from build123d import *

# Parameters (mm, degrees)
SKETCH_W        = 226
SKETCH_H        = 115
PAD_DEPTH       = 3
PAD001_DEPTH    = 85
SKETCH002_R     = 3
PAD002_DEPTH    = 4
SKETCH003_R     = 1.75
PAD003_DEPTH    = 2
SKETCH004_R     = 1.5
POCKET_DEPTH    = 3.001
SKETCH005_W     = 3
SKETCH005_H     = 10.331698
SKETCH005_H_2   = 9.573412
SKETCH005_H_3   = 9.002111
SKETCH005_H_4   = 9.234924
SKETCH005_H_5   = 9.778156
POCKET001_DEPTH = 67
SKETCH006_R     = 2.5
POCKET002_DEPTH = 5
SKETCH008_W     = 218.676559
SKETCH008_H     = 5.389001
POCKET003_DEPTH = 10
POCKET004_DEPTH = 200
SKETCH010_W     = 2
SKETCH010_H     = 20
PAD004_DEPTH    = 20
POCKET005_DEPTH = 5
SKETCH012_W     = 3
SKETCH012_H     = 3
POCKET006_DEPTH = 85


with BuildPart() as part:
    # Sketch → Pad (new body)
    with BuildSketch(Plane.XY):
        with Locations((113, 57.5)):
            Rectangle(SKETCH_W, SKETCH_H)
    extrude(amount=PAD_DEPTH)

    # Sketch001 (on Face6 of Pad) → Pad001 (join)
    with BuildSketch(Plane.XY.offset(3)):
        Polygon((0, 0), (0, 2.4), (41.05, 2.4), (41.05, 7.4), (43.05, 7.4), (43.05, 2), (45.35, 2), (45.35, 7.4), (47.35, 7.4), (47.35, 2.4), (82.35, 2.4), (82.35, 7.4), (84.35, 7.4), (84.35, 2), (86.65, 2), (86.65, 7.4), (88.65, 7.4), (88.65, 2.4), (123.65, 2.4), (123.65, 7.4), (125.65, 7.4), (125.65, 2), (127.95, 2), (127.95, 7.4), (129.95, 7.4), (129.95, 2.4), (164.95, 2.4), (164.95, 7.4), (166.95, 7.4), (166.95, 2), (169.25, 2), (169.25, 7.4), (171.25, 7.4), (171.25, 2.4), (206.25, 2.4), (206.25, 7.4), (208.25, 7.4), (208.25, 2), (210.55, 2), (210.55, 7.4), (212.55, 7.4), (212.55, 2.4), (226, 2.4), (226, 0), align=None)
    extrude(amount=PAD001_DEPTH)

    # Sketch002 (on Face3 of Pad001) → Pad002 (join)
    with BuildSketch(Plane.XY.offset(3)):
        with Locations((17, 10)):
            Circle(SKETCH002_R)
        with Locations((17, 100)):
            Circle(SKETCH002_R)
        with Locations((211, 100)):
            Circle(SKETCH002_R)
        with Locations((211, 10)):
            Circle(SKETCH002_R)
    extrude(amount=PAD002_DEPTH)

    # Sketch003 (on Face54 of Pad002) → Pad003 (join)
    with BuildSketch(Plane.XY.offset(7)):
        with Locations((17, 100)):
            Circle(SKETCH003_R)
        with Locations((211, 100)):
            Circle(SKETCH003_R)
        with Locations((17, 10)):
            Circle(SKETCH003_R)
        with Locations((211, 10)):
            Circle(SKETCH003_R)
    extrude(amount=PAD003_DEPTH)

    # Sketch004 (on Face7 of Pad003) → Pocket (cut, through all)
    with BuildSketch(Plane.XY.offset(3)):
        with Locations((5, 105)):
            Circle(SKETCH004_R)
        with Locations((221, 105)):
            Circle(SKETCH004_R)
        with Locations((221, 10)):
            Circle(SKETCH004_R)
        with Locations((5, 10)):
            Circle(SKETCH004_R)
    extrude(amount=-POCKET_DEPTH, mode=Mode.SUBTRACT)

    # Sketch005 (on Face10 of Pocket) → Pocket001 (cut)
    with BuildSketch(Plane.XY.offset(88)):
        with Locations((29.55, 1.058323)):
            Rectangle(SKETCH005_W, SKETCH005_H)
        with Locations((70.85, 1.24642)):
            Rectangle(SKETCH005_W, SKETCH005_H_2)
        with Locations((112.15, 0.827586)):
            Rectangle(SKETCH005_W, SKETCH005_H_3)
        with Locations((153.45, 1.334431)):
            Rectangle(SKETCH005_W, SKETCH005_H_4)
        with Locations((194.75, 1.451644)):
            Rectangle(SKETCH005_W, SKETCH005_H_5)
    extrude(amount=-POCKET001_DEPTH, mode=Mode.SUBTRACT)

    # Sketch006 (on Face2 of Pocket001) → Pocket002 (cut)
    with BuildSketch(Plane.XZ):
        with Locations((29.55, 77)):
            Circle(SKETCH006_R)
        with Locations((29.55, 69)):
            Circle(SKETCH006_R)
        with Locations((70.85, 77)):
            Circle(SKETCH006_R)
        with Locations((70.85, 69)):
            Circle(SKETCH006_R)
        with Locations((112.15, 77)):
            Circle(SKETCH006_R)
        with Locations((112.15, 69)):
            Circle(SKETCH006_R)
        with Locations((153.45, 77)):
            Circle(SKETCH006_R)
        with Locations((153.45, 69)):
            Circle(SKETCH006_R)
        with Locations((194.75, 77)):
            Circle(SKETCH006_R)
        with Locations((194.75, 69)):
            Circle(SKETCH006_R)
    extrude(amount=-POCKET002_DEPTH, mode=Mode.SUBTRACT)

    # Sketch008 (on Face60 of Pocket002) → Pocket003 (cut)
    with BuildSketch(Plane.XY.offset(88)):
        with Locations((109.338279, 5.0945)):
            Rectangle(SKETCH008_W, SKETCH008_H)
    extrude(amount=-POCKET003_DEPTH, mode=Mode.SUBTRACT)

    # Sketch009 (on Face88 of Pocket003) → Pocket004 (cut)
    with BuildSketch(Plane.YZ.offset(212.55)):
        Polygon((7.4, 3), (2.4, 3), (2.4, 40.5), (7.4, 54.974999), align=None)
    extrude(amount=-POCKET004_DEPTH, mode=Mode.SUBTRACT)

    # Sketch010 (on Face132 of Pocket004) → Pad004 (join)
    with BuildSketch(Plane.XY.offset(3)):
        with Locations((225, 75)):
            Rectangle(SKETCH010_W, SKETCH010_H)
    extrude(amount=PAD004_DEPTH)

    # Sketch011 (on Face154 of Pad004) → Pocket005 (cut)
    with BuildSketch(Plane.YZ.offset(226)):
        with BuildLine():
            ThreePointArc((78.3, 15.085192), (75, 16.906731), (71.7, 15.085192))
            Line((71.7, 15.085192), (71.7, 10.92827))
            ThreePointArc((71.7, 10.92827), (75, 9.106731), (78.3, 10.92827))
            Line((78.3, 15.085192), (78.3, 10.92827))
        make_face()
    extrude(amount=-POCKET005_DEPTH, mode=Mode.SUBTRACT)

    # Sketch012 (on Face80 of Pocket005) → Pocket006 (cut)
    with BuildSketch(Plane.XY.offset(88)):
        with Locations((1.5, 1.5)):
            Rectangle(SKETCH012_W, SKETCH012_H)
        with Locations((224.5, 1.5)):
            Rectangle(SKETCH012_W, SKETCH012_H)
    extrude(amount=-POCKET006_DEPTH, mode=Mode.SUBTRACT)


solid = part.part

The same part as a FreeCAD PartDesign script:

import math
import FreeCAD as App
import Part
import Sketcher

doc = App.newDocument("Part")
body = doc.addObject("PartDesign::Body", "Body")

# Sketch on XY plane
sketch1 = body.newObject("Sketcher::SketchObject", "Sketch")
sketch1.AttachmentSupport = (doc.getObject("XY_Plane"), [""])
sketch1.MapMode = "FlatFace"
sketch1.addGeometry([
    Part.LineSegment(App.Vector(0, 115, 0), App.Vector(0, 0, 0)),
    Part.LineSegment(App.Vector(0, 0, 0), App.Vector(226, 0, 0)),
    Part.LineSegment(App.Vector(226, 0, 0), App.Vector(226, 115, 0)),
    Part.LineSegment(App.Vector(226, 115, 0), App.Vector(0, 115, 0)),
], False)
sketch1.addConstraint([
    Sketcher.Constraint("Coincident", 0, 2, 1, 1),
    Sketcher.Constraint("Coincident", 1, 2, 2, 1),
    Sketcher.Constraint("Coincident", 2, 2, 3, 1),
    Sketcher.Constraint("Coincident", 3, 2, 0, 1),
    Sketcher.Constraint("Vertical", 0),
    Sketcher.Constraint("Horizontal", 1),
    Sketcher.Constraint("Vertical", 2),
    Sketcher.Constraint("Horizontal", 3),
    Sketcher.Constraint("Coincident", 0, 2, -1, 1),
    Sketcher.Constraint("DistanceX", 1, 1, 1, 2, 226.0),
    Sketcher.Constraint("DistanceY", 0, 2, 0, 1, 115.0),
])
pad1 = body.newObject("PartDesign::Pad", "Pad")
pad1.Profile = sketch1
pad1.Length = 3

# Sketch on XY plane
sketch2 = body.newObject("Sketcher::SketchObject", "Sketch001")
sketch2.AttachmentSupport = (doc.getObject("XY_Plane"), [""])
sketch2.MapMode = "FlatFace"
sketch2.AttachmentOffset = App.Placement(App.Vector(0, 0, 3), App.Rotation())
sketch2.addGeometry([
    Part.LineSegment(App.Vector(0, 2.4, 0), App.Vector(0, 0, 0)),  # 0
    Part.LineSegment(App.Vector(0, 0, 0), App.Vector(226, 0, 0)),  # 1
    Part.LineSegment(App.Vector(226, 0, 0), App.Vector(226, 2.4, 0)),  # 2
    Part.LineSegment(App.Vector(226, 2.4, 0), App.Vector(212.6, 2.4, 0)),  # 3
    Part.LineSegment(App.Vector(212.6, 2.4, 0), App.Vector(212.6, 7.4, 0)),  # 4
    Part.LineSegment(App.Vector(212.6, 7.4, 0), App.Vector(210.6, 7.4, 0)),  # 5
    Part.LineSegment(App.Vector(210.6, 7.4, 0), App.Vector(210.6, 2, 0)),  # 6
    Part.LineSegment(App.Vector(210.6, 2, 0), App.Vector(208.2, 2, 0)),  # 7
    Part.LineSegment(App.Vector(208.2, 2, 0), App.Vector(208.2, 7.4, 0)),  # 8
    Part.LineSegment(App.Vector(208.2, 7.4, 0), App.Vector(206.2, 7.4, 0)),  # 9
    Part.LineSegment(App.Vector(206.2, 7.4, 0), App.Vector(206.2, 2.4, 0)),  # 10
    Part.LineSegment(App.Vector(206.2, 2.4, 0), App.Vector(171.2, 2.4, 0)),  # 11
    Part.LineSegment(App.Vector(171.2, 2.4, 0), App.Vector(171.2, 7.4, 0)),  # 12
    Part.LineSegment(App.Vector(171.2, 7.4, 0), App.Vector(169.2, 7.4, 0)),  # 13
    Part.LineSegment(App.Vector(169.2, 7.4, 0), App.Vector(169.2, 2, 0)),  # 14
    Part.LineSegment(App.Vector(169.2, 2, 0), App.Vector(166.9, 2, 0)),  # 15
    Part.LineSegment(App.Vector(166.9, 2, 0), App.Vector(166.9, 7.4, 0)),  # 16
    Part.LineSegment(App.Vector(166.9, 7.4, 0), App.Vector(164.9, 7.4, 0)),  # 17
    Part.LineSegment(App.Vector(164.9, 7.4, 0), App.Vector(164.9, 2.4, 0)),  # 18
    Part.LineSegment(App.Vector(164.9, 2.4, 0), App.Vector(129.9, 2.4, 0)),  # 19
    Part.LineSegment(App.Vector(129.9, 2.4, 0), App.Vector(129.9, 7.4, 0)),  # 20
    Part.LineSegment(App.Vector(129.9, 7.4, 0), App.Vector(128, 7.4, 0)),  # 21
    Part.LineSegment(App.Vector(128, 7.4, 0), App.Vector(128, 2, 0)),  # 22
    Part.LineSegment(App.Vector(128, 2, 0), App.Vector(125.7, 2, 0)),  # 23
    Part.LineSegment(App.Vector(125.7, 2, 0), App.Vector(125.7, 7.4, 0)),  # 24
    Part.LineSegment(App.Vector(125.7, 7.4, 0), App.Vector(123.7, 7.4, 0)),  # 25
    Part.LineSegment(App.Vector(123.7, 7.4, 0), App.Vector(123.7, 2.4, 0)),  # 26
    Part.LineSegment(App.Vector(123.7, 2.4, 0), App.Vector(88.7, 2.4, 0)),  # 27
    Part.LineSegment(App.Vector(88.7, 2.4, 0), App.Vector(88.7, 7.4, 0)),  # 28
    Part.LineSegment(App.Vector(88.7, 7.4, 0), App.Vector(86.7, 7.4, 0)),  # 29
    Part.LineSegment(App.Vector(86.7, 7.4, 0), App.Vector(86.7, 2, 0)),  # 30
    Part.LineSegment(App.Vector(86.7, 2, 0), App.Vector(84.3, 2, 0)),  # 31
    Part.LineSegment(App.Vector(84.3, 2, 0), App.Vector(84.3, 7.4, 0)),  # 32
    Part.LineSegment(App.Vector(84.3, 7.4, 0), App.Vector(82.3, 7.4, 0)),  # 33
    Part.LineSegment(App.Vector(82.3, 7.4, 0), App.Vector(82.3, 2.4, 0)),  # 34
    Part.LineSegment(App.Vector(82.3, 2.4, 0), App.Vector(47.4, 2.4, 0)),  # 35
    Part.LineSegment(App.Vector(47.4, 2.4, 0), App.Vector(47.4, 7.4, 0)),  # 36
    Part.LineSegment(App.Vector(47.4, 7.4, 0), App.Vector(45.4, 7.4, 0)),  # 37
    Part.LineSegment(App.Vector(45.4, 7.4, 0), App.Vector(45.4, 2, 0)),  # 38
    Part.LineSegment(App.Vector(45.4, 2, 0), App.Vector(43, 2, 0)),  # 39
    Part.LineSegment(App.Vector(43, 2, 0), App.Vector(43, 7.4, 0)),  # 40
    Part.LineSegment(App.Vector(43, 7.4, 0), App.Vector(41, 7.4, 0)),  # 41
    Part.LineSegment(App.Vector(41, 7.4, 0), App.Vector(41, 2.4, 0)),  # 42
    Part.LineSegment(App.Vector(41, 2.4, 0), App.Vector(0, 2.4, 0)),  # 43
], False)
sketch2.addConstraint([
    Sketcher.Constraint("Coincident", 0, 2, 1, 1),
    Sketcher.Constraint("Coincident", 1, 2, 2, 1),
    Sketcher.Constraint("Coincident", 2, 2, 3, 1),
    Sketcher.Constraint("Coincident", 3, 2, 4, 1),
    Sketcher.Constraint("Coincident", 4, 2, 5, 1),
    Sketcher.Constraint("Coincident", 5, 2, 6, 1),
    Sketcher.Constraint("Coincident", 6, 2, 7, 1),
    Sketcher.Constraint("Coincident", 7, 2, 8, 1),
    Sketcher.Constraint("Coincident", 8, 2, 9, 1),
    Sketcher.Constraint("Coincident", 9, 2, 10, 1),
    Sketcher.Constraint("Coincident", 10, 2, 11, 1),
    Sketcher.Constraint("Coincident", 11, 2, 12, 1),
    Sketcher.Constraint("Coincident", 12, 2, 13, 1),
    Sketcher.Constraint("Coincident", 13, 2, 14, 1),
    Sketcher.Constraint("Coincident", 14, 2, 15, 1),
    Sketcher.Constraint("Coincident", 15, 2, 16, 1),
    Sketcher.Constraint("Coincident", 16, 2, 17, 1),
    Sketcher.Constraint("Coincident", 17, 2, 18, 1),
    Sketcher.Constraint("Coincident", 18, 2, 19, 1),
    Sketcher.Constraint("Coincident", 19, 2, 20, 1),
    Sketcher.Constraint("Coincident", 20, 2, 21, 1),
    Sketcher.Constraint("Coincident", 21, 2, 22, 1),
    Sketcher.Constraint("Coincident", 22, 2, 23, 1),
    Sketcher.Constraint("Coincident", 23, 2, 24, 1),
    Sketcher.Constraint("Coincident", 24, 2, 25, 1),
    Sketcher.Constraint("Coincident", 25, 2, 26, 1),
    Sketcher.Constraint("Coincident", 26, 2, 27, 1),
    Sketcher.Constraint("Coincident", 27, 2, 28, 1),
    Sketcher.Constraint("Coincident", 28, 2, 29, 1),
    Sketcher.Constraint("Coincident", 29, 2, 30, 1),
    Sketcher.Constraint("Coincident", 30, 2, 31, 1),
    Sketcher.Constraint("Coincident", 31, 2, 32, 1),
    Sketcher.Constraint("Coincident", 32, 2, 33, 1),
    Sketcher.Constraint("Coincident", 33, 2, 34, 1),
    Sketcher.Constraint("Coincident", 34, 2, 35, 1),
    Sketcher.Constraint("Coincident", 35, 2, 36, 1),
    Sketcher.Constraint("Coincident", 36, 2, 37, 1),
    Sketcher.Constraint("Coincident", 37, 2, 38, 1),
    Sketcher.Constraint("Coincident", 38, 2, 39, 1),
    Sketcher.Constraint("Coincident", 39, 2, 40, 1),
    Sketcher.Constraint("Coincident", 40, 2, 41, 1),
    Sketcher.Constraint("Coincident", 41, 2, 42, 1),
    Sketcher.Constraint("Coincident", 42, 2, 43, 1),
    Sketcher.Constraint("Coincident", 43, 2, 0, 1),
    Sketcher.Constraint("Vertical", 0),
    Sketcher.Constraint("Horizontal", 1),
    Sketcher.Constraint("Vertical", 2),
    Sketcher.Constraint("Horizontal", 3),
    Sketcher.Constraint("Vertical", 4),
    Sketcher.Constraint("Horizontal", 5),
    Sketcher.Constraint("Vertical", 6),
    Sketcher.Constraint("Horizontal", 7),
    Sketcher.Constraint("Vertical", 8),
    Sketcher.Constraint("Horizontal", 9),
    Sketcher.Constraint("Vertical", 10),
    Sketcher.Constraint("Horizontal", 11),
    Sketcher.Constraint("Vertical", 12),
    Sketcher.Constraint("Horizontal", 13),
    Sketcher.Constraint("Vertical", 14),
    Sketcher.Constraint("Horizontal", 15),
    Sketcher.Constraint("Vertical", 16),
    Sketcher.Constraint("Horizontal", 17),
    Sketcher.Constraint("Vertical", 18),
    Sketcher.Constraint("Horizontal", 19),
    Sketcher.Constraint("Vertical", 20),
    Sketcher.Constraint("Horizontal", 21),
    Sketcher.Constraint("Vertical", 22),
    Sketcher.Constraint("Horizontal", 23),
    Sketcher.Constraint("Vertical", 24),
    Sketcher.Constraint("Horizontal", 25),
    Sketcher.Constraint("Vertical", 26),
    Sketcher.Constraint("Horizontal", 27),
    Sketcher.Constraint("Vertical", 28),
    Sketcher.Constraint("Horizontal", 29),
    Sketcher.Constraint("Vertical", 30),
    Sketcher.Constraint("Horizontal", 31),
    Sketcher.Constraint("Vertical", 32),
    Sketcher.Constraint("Horizontal", 33),
    Sketcher.Constraint("Vertical", 34),
    Sketcher.Constraint("Horizontal", 35),
    Sketcher.Constraint("Vertical", 36),
    Sketcher.Constraint("Horizontal", 37),
    Sketcher.Constraint("Vertical", 38),
    Sketcher.Constraint("Horizontal", 39),
    Sketcher.Constraint("Vertical", 40),
    Sketcher.Constraint("Horizontal", 41),
    Sketcher.Constraint("Vertical", 42),
    Sketcher.Constraint("Horizontal", 43),
    Sketcher.Constraint("Coincident", 0, 2, -1, 1),
    Sketcher.Constraint("Horizontal", 5, 2, 8, 2),
    Sketcher.Constraint("Horizontal", 3, 2, 10, 2),
    Sketcher.Constraint("Horizontal", 9, 2, 12, 2),
    Sketcher.Constraint("Horizontal", 7, 2, 14, 2),
    Sketcher.Constraint("Horizontal", 13, 2, 16, 2),
    Sketcher.Constraint("Horizontal", 11, 2, 18, 2),
    Sketcher.Constraint("Horizontal", 17, 2, 20, 2),
    Sketcher.Constraint("Horizontal", 15, 2, 22, 2),
    Sketcher.Constraint("Horizontal", 21, 2, 24, 2),
    Sketcher.Constraint("Horizontal", 19, 2, 26, 2),
    Sketcher.Constraint("Horizontal", 25, 2, 28, 2),
    Sketcher.Constraint("Horizontal", 23, 2, 30, 2),
    Sketcher.Constraint("Horizontal", 29, 2, 32, 2),
    Sketcher.Constraint("Horizontal", 27, 2, 34, 2),
    Sketcher.Constraint("Horizontal", 33, 2, 36, 2),
    Sketcher.Constraint("Horizontal", 31, 2, 38, 2),
    Sketcher.Constraint("Horizontal", 37, 2, 40, 2),
    Sketcher.Constraint("Horizontal", 35, 2, 42, 2),
    Sketcher.Constraint("Equal", 5, 9),
    Sketcher.Constraint("Equal", 9, 13),
    Sketcher.Constraint("Equal", 7, 15),
    Sketcher.Constraint("Equal", 13, 17),
    Sketcher.Constraint("Equal", 11, 19),
    Sketcher.Constraint("Equal", 17, 21),
    Sketcher.Constraint("Equal", 15, 23),
    Sketcher.Constraint("Equal", 21, 25),
    Sketcher.Constraint("Equal", 19, 27),
    Sketcher.Constraint("Equal", 25, 29),
    Sketcher.Constraint("Equal", 23, 31),
    Sketcher.Constraint("Equal", 29, 33),
    Sketcher.Constraint("Equal", 27, 35),
    Sketcher.Constraint("Equal", 33, 37),
    Sketcher.Constraint("Equal", 31, 39),
    Sketcher.Constraint("Equal", 37, 41),
    Sketcher.Constraint("DistanceX", 1, 1, 1, 2, 226.0),
    Sketcher.Constraint("DistanceX", 5, 2, 5, 1, 2.0),
    Sketcher.Constraint("DistanceX", 11, 2, 11, 1, 35.0),
    Sketcher.Constraint("DistanceY", 4, 1, 4, 2, 5.0),
    Sketcher.Constraint("DistanceX", 7, 2, 7, 1, 2.3),
    Sketcher.Constraint("DistanceY", 0, 2, 0, 1, 2.4),
    Sketcher.Constraint("DistanceY", 6, 2, 6, 1, 5.4),
    Sketcher.Constraint("DistanceX", 3, 2, 3, 1, 13.45),
])
pad2 = body.newObject("PartDesign::Pad", "Pad001")
pad2.Profile = sketch2
pad2.Length = 85

# Sketch on XY plane
sketch3 = body.newObject("Sketcher::SketchObject", "Sketch002")
sketch3.AttachmentSupport = (doc.getObject("XY_Plane"), [""])
sketch3.MapMode = "FlatFace"
sketch3.AttachmentOffset = App.Placement(App.Vector(0, 0, 3), App.Rotation())
sketch3.addGeometry([
    Part.Circle(App.Vector(17, 10, 0), App.Vector(0, 0, 1), 3),
    Part.Circle(App.Vector(17, 100, 0), App.Vector(0, 0, 1), 3),
    Part.Circle(App.Vector(211, 100, 0), App.Vector(0, 0, 1), 3),
    Part.Circle(App.Vector(211, 10, 0), App.Vector(0, 0, 1), 3),
], False)
sketch3.addConstraint([
    Sketcher.Constraint("Equal", 0, 1),
    Sketcher.Constraint("Equal", 1, 2),
    Sketcher.Constraint("Equal", 2, 3),
    Sketcher.Constraint("Horizontal", 1, 3, 2, 3),
    Sketcher.Constraint("Horizontal", 0, 3, 3, 3),
    Sketcher.Constraint("Vertical", 0, 3, 1, 3),
    Sketcher.Constraint("Vertical", 2, 3, 3, 3),
    Sketcher.Constraint("Diameter", 0, 6.0),
    Sketcher.Constraint("DistanceX", -1, 1, 0, 3, 17.0),
    Sketcher.Constraint("DistanceY", -1, 1, 0, 3, 10.0),
    Sketcher.Constraint("DistanceY", -1, 1, 1, 3, 100.0),
    Sketcher.Constraint("DistanceX", -1, 1, 2, 3, 211.0),
])
pad3 = body.newObject("PartDesign::Pad", "Pad002")
pad3.Profile = sketch3
pad3.Length = 4

# Sketch on XY plane
sketch4 = body.newObject("Sketcher::SketchObject", "Sketch003")
sketch4.AttachmentSupport = (doc.getObject("XY_Plane"), [""])
sketch4.MapMode = "FlatFace"
sketch4.AttachmentOffset = App.Placement(App.Vector(0, 0, 7), App.Rotation())
sketch4.addGeometry([
    Part.Circle(App.Vector(17, 100, 0), App.Vector(0, 0, 1), 1.8),
    Part.Circle(App.Vector(211, 100, 0), App.Vector(0, 0, 1), 1.8),
    Part.Circle(App.Vector(17, 10, 0), App.Vector(0, 0, 1), 1.8),
    Part.Circle(App.Vector(211, 10, 0), App.Vector(0, 0, 1), 1.8),
], False)
sketch4.addConstraint([
    Sketcher.Constraint("Equal", 0, 1),
    Sketcher.Constraint("Equal", 1, 2),
    Sketcher.Constraint("Equal", 2, 3),
    Sketcher.Constraint("Horizontal", 0, 3, 1, 3),
    Sketcher.Constraint("Horizontal", 2, 3, 3, 3),
    Sketcher.Constraint("Vertical", 0, 3, 2, 3),
    Sketcher.Constraint("Vertical", 1, 3, 3, 3),
    Sketcher.Constraint("Diameter", 0, 3.5),
    Sketcher.Constraint("DistanceX", -1, 1, 0, 3, 17.0),
    Sketcher.Constraint("DistanceY", -1, 1, 0, 3, 100.0),
    Sketcher.Constraint("DistanceX", -1, 1, 1, 3, 211.0),
    Sketcher.Constraint("DistanceY", -1, 1, 2, 3, 10.0),
])
pad4 = body.newObject("PartDesign::Pad", "Pad003")
pad4.Profile = sketch4
pad4.Length = 2

# Sketch on XY plane
sketch5 = body.newObject("Sketcher::SketchObject", "Sketch004")
sketch5.AttachmentSupport = (doc.getObject("XY_Plane"), [""])
sketch5.MapMode = "FlatFace"
sketch5.AttachmentOffset = App.Placement(App.Vector(0, 0, 3), App.Rotation())
sketch5.addGeometry([
    Part.Circle(App.Vector(5, 105, 0), App.Vector(0, 0, 1), 1.5),
    Part.Circle(App.Vector(221, 105, 0), App.Vector(0, 0, 1), 1.5),
    Part.Circle(App.Vector(221, 10, 0), App.Vector(0, 0, 1), 1.5),
    Part.Circle(App.Vector(5, 10, 0), App.Vector(0, 0, 1), 1.5),
], False)
sketch5.addConstraint([
    Sketcher.Constraint("Equal", 0, 1),
    Sketcher.Constraint("Equal", 1, 2),
    Sketcher.Constraint("Equal", 2, 3),
    Sketcher.Constraint("Horizontal", 0, 3, 1, 3),
    Sketcher.Constraint("Horizontal", 2, 3, 3, 3),
    Sketcher.Constraint("Vertical", 1, 3, 2, 3),
    Sketcher.Constraint("Vertical", 0, 3, 3, 3),
    Sketcher.Constraint("Diameter", 0, 3.0),
    Sketcher.Constraint("DistanceX", -1, 1, 0, 3, 5.0),
    Sketcher.Constraint("DistanceY", -1, 1, 0, 3, 105.0),
    Sketcher.Constraint("DistanceX", -1, 1, 1, 3, 221.0),
    Sketcher.Constraint("DistanceY", -1, 1, 2, 3, 10.0),
])
pocket1 = body.newObject("PartDesign::Pocket", "Pocket")
pocket1.Profile = sketch5
pocket1.Type = "ThroughAll"

# Sketch on XY plane
sketch6 = body.newObject("Sketcher::SketchObject", "Sketch005")
sketch6.AttachmentSupport = (doc.getObject("XY_Plane"), [""])
sketch6.MapMode = "FlatFace"
sketch6.AttachmentOffset = App.Placement(App.Vector(0, 0, 88), App.Rotation())
sketch6.addGeometry([
    Part.LineSegment(App.Vector(28.1, 6.2, 0), App.Vector(28.1, -4.1, 0)),  # 0
    Part.LineSegment(App.Vector(28.1, -4.1, 0), App.Vector(31.1, -4.1, 0)),  # 1
    Part.LineSegment(App.Vector(31.1, -4.1, 0), App.Vector(31.1, 6.2, 0)),  # 2
    Part.LineSegment(App.Vector(31.1, 6.2, 0), App.Vector(28.1, 6.2, 0)),  # 3
    Part.LineSegment(App.Vector(69.3, 6, 0), App.Vector(69.3, -3.5, 0)),  # 4
    Part.LineSegment(App.Vector(69.3, -3.5, 0), App.Vector(72.3, -3.5, 0)),  # 5
    Part.LineSegment(App.Vector(72.3, -3.5, 0), App.Vector(72.3, 6, 0)),  # 6
    Part.LineSegment(App.Vector(72.3, 6, 0), App.Vector(69.3, 6, 0)),  # 7
    Part.LineSegment(App.Vector(110.7, 5.3, 0), App.Vector(110.7, -3.7, 0)),  # 8
    Part.LineSegment(App.Vector(110.7, -3.7, 0), App.Vector(113.7, -3.7, 0)),  # 9
    Part.LineSegment(App.Vector(113.7, -3.7, 0), App.Vector(113.7, 5.3, 0)),  # 10
    Part.LineSegment(App.Vector(113.7, 5.3, 0), App.Vector(110.7, 5.3, 0)),  # 11
    Part.LineSegment(App.Vector(151.9, 6, 0), App.Vector(151.9, -3.3, 0)),  # 12
    Part.LineSegment(App.Vector(151.9, -3.3, 0), App.Vector(154.9, -3.3, 0)),  # 13
    Part.LineSegment(App.Vector(154.9, -3.3, 0), App.Vector(154.9, 6, 0)),  # 14
    Part.LineSegment(App.Vector(154.9, 6, 0), App.Vector(151.9, 6, 0)),  # 15
    Part.LineSegment(App.Vector(193.2, 6.3, 0), App.Vector(193.2, -3.4, 0)),  # 16
    Part.LineSegment(App.Vector(193.2, -3.4, 0), App.Vector(196.2, -3.4, 0)),  # 17
    Part.LineSegment(App.Vector(196.2, -3.4, 0), App.Vector(196.2, 6.3, 0)),  # 18
    Part.LineSegment(App.Vector(196.2, 6.3, 0), App.Vector(193.2, 6.3, 0)),  # 19
], False)
sketch6.addConstraint([
    Sketcher.Constraint("Coincident", 0, 2, 1, 1),
    Sketcher.Constraint("Coincident", 1, 2, 2, 1),
    Sketcher.Constraint("Coincident", 2, 2, 3, 1),
    Sketcher.Constraint("Coincident", 3, 2, 0, 1),
    Sketcher.Constraint("Coincident", 4, 2, 5, 1),
    Sketcher.Constraint("Coincident", 5, 2, 6, 1),
    Sketcher.Constraint("Coincident", 6, 2, 7, 1),
    Sketcher.Constraint("Coincident", 7, 2, 4, 1),
    Sketcher.Constraint("Coincident", 8, 2, 9, 1),
    Sketcher.Constraint("Coincident", 9, 2, 10, 1),
    Sketcher.Constraint("Coincident", 10, 2, 11, 1),
    Sketcher.Constraint("Coincident", 11, 2, 8, 1),
    Sketcher.Constraint("Coincident", 12, 2, 13, 1),
    Sketcher.Constraint("Coincident", 13, 2, 14, 1),
    Sketcher.Constraint("Coincident", 14, 2, 15, 1),
    Sketcher.Constraint("Coincident", 15, 2, 12, 1),
    Sketcher.Constraint("Coincident", 16, 2, 17, 1),
    Sketcher.Constraint("Coincident", 17, 2, 18, 1),
    Sketcher.Constraint("Coincident", 18, 2, 19, 1),
    Sketcher.Constraint("Coincident", 19, 2, 16, 1),
    Sketcher.Constraint("Vertical", 0),
    Sketcher.Constraint("Horizontal", 1),
    Sketcher.Constraint("Vertical", 2),
    Sketcher.Constraint("Horizontal", 3),
    Sketcher.Constraint("Vertical", 4),
    Sketcher.Constraint("Horizontal", 5),
    Sketcher.Constraint("Vertical", 6),
    Sketcher.Constraint("Horizontal", 7),
    Sketcher.Constraint("Vertical", 8),
    Sketcher.Constraint("Horizontal", 9),
    Sketcher.Constraint("Vertical", 10),
    Sketcher.Constraint("Horizontal", 11),
    Sketcher.Constraint("Vertical", 12),
    Sketcher.Constraint("Horizontal", 13),
    Sketcher.Constraint("Vertical", 14),
    Sketcher.Constraint("Horizontal", 15),
    Sketcher.Constraint("Vertical", 16),
    Sketcher.Constraint("Horizontal", 17),
    Sketcher.Constraint("Vertical", 18),
    Sketcher.Constraint("Horizontal", 19),
    Sketcher.Constraint("Equal", 3, 5),
    Sketcher.Constraint("Equal", 7, 9),
    Sketcher.Constraint("Equal", 11, 13),
    Sketcher.Constraint("Equal", 15, 17),
    Sketcher.Constraint("DistanceX", 1, 1, 1, 2, 3.0),
    Sketcher.Constraint("DistanceX", 1, 2, 4, 2, 38.3),
    Sketcher.Constraint("DistanceX", 5, 2, 8, 2, 38.3),
    Sketcher.Constraint("DistanceX", 9, 2, 12, 2, 38.3),
    Sketcher.Constraint("DistanceX", 13, 2, 16, 2, 38.3),
    Sketcher.Constraint("DistanceX", -1, 1, 0, 2, 28.05),
    Sketcher.Constraint("DistanceY", 8, 2, 8, 1, 9.002111),
    Sketcher.Constraint("DistanceY", 0, 2, 0, 1, 10.331698),
    Sketcher.Constraint("DistanceY", 4, 2, 4, 1, 9.573412),
    Sketcher.Constraint("DistanceY", 12, 2, 12, 1, 9.234924),
    Sketcher.Constraint("DistanceY", 16, 2, 16, 1, 9.778156),
    Sketcher.Constraint("DistanceY", 8, 2, -1, 1, 3.673469),
    Sketcher.Constraint("DistanceY", 12, 2, -1, 1, 3.283031),
    Sketcher.Constraint("DistanceY", 1, 2, 4, 2, 0.56724),
    Sketcher.Constraint("DistanceY", 14, 2, 18, 2, 0.388829),
    Sketcher.Constraint("DistanceY", 0, 2, -1, 1, 4.107526),
])
pocket2 = body.newObject("PartDesign::Pocket", "Pocket001")
pocket2.Profile = sketch6
pocket2.Length = 67

# Sketch on XZ plane
sketch7 = body.newObject("Sketcher::SketchObject", "Sketch006")
sketch7.AttachmentSupport = (doc.getObject("XZ_Plane"), [""])
sketch7.MapMode = "FlatFace"
sketch7.addGeometry([
    Part.Circle(App.Vector(29.6, 77, 0), App.Vector(0, 0, 1), 2.5),  # 0
    Part.Circle(App.Vector(29.6, 69, 0), App.Vector(0, 0, 1), 2.5),  # 1
    Part.Circle(App.Vector(70.8, 77, 0), App.Vector(0, 0, 1), 2.5),  # 2
    Part.Circle(App.Vector(70.8, 69, 0), App.Vector(0, 0, 1), 2.5),  # 3
    Part.Circle(App.Vector(112.2, 77, 0), App.Vector(0, 0, 1), 2.5),  # 4
    Part.Circle(App.Vector(112.2, 69, 0), App.Vector(0, 0, 1), 2.5),  # 5
    Part.Circle(App.Vector(153.4, 77, 0), App.Vector(0, 0, 1), 2.5),  # 6
    Part.Circle(App.Vector(153.4, 69, 0), App.Vector(0, 0, 1), 2.5),  # 7
    Part.Circle(App.Vector(194.8, 77, 0), App.Vector(0, 0, 1), 2.5),  # 8
    Part.Circle(App.Vector(194.8, 69, 0), App.Vector(0, 0, 1), 2.5),  # 9
], False)
sketch7.addConstraint([
    Sketcher.Constraint("Equal", 0, 1),
    Sketcher.Constraint("Equal", 1, 2),
    Sketcher.Constraint("Equal", 2, 3),
    Sketcher.Constraint("Equal", 3, 4),
    Sketcher.Constraint("Equal", 4, 5),
    Sketcher.Constraint("Equal", 5, 6),
    Sketcher.Constraint("Equal", 6, 7),
    Sketcher.Constraint("Equal", 7, 8),
    Sketcher.Constraint("Equal", 8, 9),
    Sketcher.Constraint("Horizontal", 0, 3, 2, 3),
    Sketcher.Constraint("Horizontal", 1, 3, 3, 3),
    Sketcher.Constraint("Horizontal", 2, 3, 4, 3),
    Sketcher.Constraint("Horizontal", 3, 3, 5, 3),
    Sketcher.Constraint("Horizontal", 4, 3, 6, 3),
    Sketcher.Constraint("Horizontal", 5, 3, 7, 3),
    Sketcher.Constraint("Horizontal", 6, 3, 8, 3),
    Sketcher.Constraint("Horizontal", 7, 3, 9, 3),
    Sketcher.Constraint("Vertical", 0, 3, 1, 3),
    Sketcher.Constraint("Vertical", 2, 3, 3, 3),
    Sketcher.Constraint("Vertical", 4, 3, 5, 3),
    Sketcher.Constraint("Vertical", 6, 3, 7, 3),
    Sketcher.Constraint("Vertical", 8, 3, 9, 3),
    Sketcher.Constraint("Diameter", 0, 5.0),
    Sketcher.Constraint("DistanceY", -1, 1, 0, 3, 77.0),
    Sketcher.Constraint("DistanceY", -1, 1, 1, 3, 69.0),
    Sketcher.Constraint("DistanceX", 0, 3, 2, 3, 41.3),
    Sketcher.Constraint("DistanceX", 2, 3, 4, 3, 41.3),
    Sketcher.Constraint("DistanceX", 4, 3, 6, 3, 41.3),
    Sketcher.Constraint("DistanceX", 6, 3, 8, 3, 41.3),
    Sketcher.Constraint("DistanceX", -1, 1, 0, 3, 29.55),
])
pocket3 = body.newObject("PartDesign::Pocket", "Pocket002")
pocket3.Profile = sketch7
pocket3.Length = 5

# Sketch on XY plane
sketch8 = body.newObject("Sketcher::SketchObject", "Sketch007")
sketch8.AttachmentSupport = (doc.getObject("XY_Plane"), [""])
sketch8.MapMode = "FlatFace"
sketch8.AttachmentOffset = App.Placement(App.Vector(0, 0, 88), App.Rotation())
sketch8.addGeometry([
    Part.LineSegment(App.Vector(0, 8, 0), App.Vector(0, 2, 0)),
    Part.LineSegment(App.Vector(0, 2, 0), App.Vector(219, 2, 0)),
    Part.LineSegment(App.Vector(219, 2, 0), App.Vector(219, 8, 0)),
    Part.LineSegment(App.Vector(219, 8, 0), App.Vector(0, 8, 0)),
], False)
sketch8.addConstraint([
    Sketcher.Constraint("Coincident", 0, 2, 1, 1),
    Sketcher.Constraint("Coincident", 1, 2, 2, 1),
    Sketcher.Constraint("Coincident", 2, 2, 3, 1),
    Sketcher.Constraint("Coincident", 3, 2, 0, 1),
    Sketcher.Constraint("Vertical", 0),
    Sketcher.Constraint("Horizontal", 1),
    Sketcher.Constraint("Vertical", 2),
    Sketcher.Constraint("Horizontal", 3),
    Sketcher.Constraint("PointOnObject", 0, 2, -2),
    Sketcher.Constraint("DistanceY", -1, 1, 0, 2, 2.399999),
    Sketcher.Constraint("DistanceY", 0, 2, 0, 1, 5.389001),
    Sketcher.Constraint("DistanceX", 1, 1, 1, 2, 218.676559),
])
pocket4 = body.newObject("PartDesign::Pocket", "Pocket003")
pocket4.Profile = sketch8
pocket4.Length = 10

# Sketch on YZ plane
sketch9 = body.newObject("Sketcher::SketchObject", "Sketch008")
sketch9.AttachmentSupport = (doc.getObject("YZ_Plane"), [""])
sketch9.MapMode = "FlatFace"
sketch9.AttachmentOffset = App.Placement(App.Vector(0, 0, 212.55), App.Rotation())
sketch9.addGeometry([
    Part.LineSegment(App.Vector(2, 3, 0), App.Vector(7, 3, 0)),
    Part.LineSegment(App.Vector(7, 3, 0), App.Vector(7, 55, 0)),
    Part.LineSegment(App.Vector(7, 55, 0), App.Vector(2, 40, 0)),
    Part.LineSegment(App.Vector(2, 40, 0), App.Vector(2, 3, 0)),
], False)
sketch9.addConstraint([
    Sketcher.Constraint("Coincident", 0, 2, 1, 1),
    Sketcher.Constraint("Coincident", 1, 2, 2, 1),
    Sketcher.Constraint("Coincident", 2, 2, 3, 1),
    Sketcher.Constraint("Coincident", 3, 2, 0, 1),
    Sketcher.Constraint("Horizontal", 0),
    Sketcher.Constraint("Vertical", 1),
    Sketcher.Constraint("Vertical", 3),
    Sketcher.Constraint("DistanceX", 0, 1, 0, 2, 5.0),
    Sketcher.Constraint("DistanceY", 3, 2, 3, 1, 37.5),
    Sketcher.Constraint("DistanceY", -1, 1, 0, 2, 3.0),
    Sketcher.Constraint("DistanceX", -1, 1, 0, 2, 7.4),
    Sketcher.Constraint("DistanceY", 1, 1, 1, 2, 51.974999),
])
pocket5 = body.newObject("PartDesign::Pocket", "Pocket004")
pocket5.Profile = sketch9
pocket5.Length = 200

# Sketch on XY plane
sketch10 = body.newObject("Sketcher::SketchObject", "Sketch009")
sketch10.AttachmentSupport = (doc.getObject("XY_Plane"), [""])
sketch10.MapMode = "FlatFace"
sketch10.AttachmentOffset = App.Placement(App.Vector(0, 0, 3), App.Rotation())
sketch10.addGeometry([
    Part.LineSegment(App.Vector(224, 85, 0), App.Vector(224, 65, 0)),
    Part.LineSegment(App.Vector(224, 65, 0), App.Vector(226, 65, 0)),
    Part.LineSegment(App.Vector(226, 65, 0), App.Vector(226, 85, 0)),
    Part.LineSegment(App.Vector(226, 85, 0), App.Vector(224, 85, 0)),
], False)
sketch10.addConstraint([
    Sketcher.Constraint("Coincident", 0, 2, 1, 1),
    Sketcher.Constraint("Coincident", 1, 2, 2, 1),
    Sketcher.Constraint("Coincident", 2, 2, 3, 1),
    Sketcher.Constraint("Coincident", 3, 2, 0, 1),
    Sketcher.Constraint("Vertical", 0),
    Sketcher.Constraint("Horizontal", 1),
    Sketcher.Constraint("Vertical", 2),
    Sketcher.Constraint("Horizontal", 3),
    Sketcher.Constraint("DistanceX", 1, 1, 1, 2, 2.0),
    Sketcher.Constraint("DistanceY", 0, 2, 0, 1, 20.0),
    Sketcher.Constraint("DistanceX", -1, 1, 0, 2, 224.0),
    Sketcher.Constraint("DistanceY", -1, 1, 0, 2, 65.0),
])
pad5 = body.newObject("PartDesign::Pad", "Pad004")
pad5.Profile = sketch10
pad5.Length = 20

# Sketch on YZ plane
sketch11 = body.newObject("Sketcher::SketchObject", "Sketch010")
sketch11.AttachmentSupport = (doc.getObject("YZ_Plane"), [""])
sketch11.MapMode = "FlatFace"
sketch11.AttachmentOffset = App.Placement(App.Vector(0, 0, 226), App.Rotation())
sketch11.addGeometry([
    Part.ArcOfCircle(Part.Circle(App.Vector(75, 13, 0), App.Vector(0, 0, 1), 3.9), math.radians(32), math.radians(148)),
    Part.LineSegment(App.Vector(71.7, 15.1, 0), App.Vector(71.7, 10.9, 0)),
    Part.ArcOfCircle(Part.Circle(App.Vector(75, 13, 0), App.Vector(0, 0, 1), 3.9), math.radians(-148), math.radians(-32)),
    Part.LineSegment(App.Vector(78.3, 10.9, 0), App.Vector(78.3, 15.1, 0)),
], False)
sketch11.addConstraint([
    Sketcher.Constraint("Coincident", 0, 2, 1, 1),
    Sketcher.Constraint("Coincident", 1, 2, 2, 1),
    Sketcher.Constraint("Coincident", 2, 2, 3, 1),
    Sketcher.Constraint("Coincident", 3, 2, 0, 1),
    Sketcher.Constraint("Vertical", 1),
    Sketcher.Constraint("Vertical", 3),
    Sketcher.Constraint("Coincident", 2, 3, 0, 3),
    Sketcher.Constraint("Equal", 0, 2),
    Sketcher.Constraint("Horizontal", 1, 2, 2, 2),
    Sketcher.Constraint("Radius", 0, 3.9),
    Sketcher.Constraint("DistanceX", -1, 1, 0, 3, 75.0),
    Sketcher.Constraint("DistanceX", -1, 1, 0, 2, 71.7),
    Sketcher.Constraint("DistanceY", -1, 1, 0, 3, 13.006731),
])
pocket6 = body.newObject("PartDesign::Pocket", "Pocket005")
pocket6.Profile = sketch11
pocket6.Length = 5

# Sketch on XY plane
sketch12 = body.newObject("Sketcher::SketchObject", "Sketch011")
sketch12.AttachmentSupport = (doc.getObject("XY_Plane"), [""])
sketch12.MapMode = "FlatFace"
sketch12.AttachmentOffset = App.Placement(App.Vector(0, 0, 88), App.Rotation())
sketch12.addGeometry([
    Part.LineSegment(App.Vector(0, 3, 0), App.Vector(0, 0, 0)),  # 0
    Part.LineSegment(App.Vector(0, 0, 0), App.Vector(3, 0, 0)),  # 1
    Part.LineSegment(App.Vector(3, 0, 0), App.Vector(3, 3, 0)),  # 2
    Part.LineSegment(App.Vector(3, 3, 0), App.Vector(0, 3, 0)),  # 3
    Part.LineSegment(App.Vector(223, 3, 0), App.Vector(223, 0, 0)),  # 4
    Part.LineSegment(App.Vector(223, 0, 0), App.Vector(226, 0, 0)),  # 5
    Part.LineSegment(App.Vector(226, 0, 0), App.Vector(226, 3, 0)),  # 6
    Part.LineSegment(App.Vector(226, 3, 0), App.Vector(223, 3, 0)),  # 7
], False)
sketch12.addConstraint([
    Sketcher.Constraint("Coincident", 0, 2, 1, 1),
    Sketcher.Constraint("Coincident", 1, 2, 2, 1),
    Sketcher.Constraint("Coincident", 2, 2, 3, 1),
    Sketcher.Constraint("Coincident", 3, 2, 0, 1),
    Sketcher.Constraint("Coincident", 4, 2, 5, 1),
    Sketcher.Constraint("Coincident", 5, 2, 6, 1),
    Sketcher.Constraint("Coincident", 6, 2, 7, 1),
    Sketcher.Constraint("Coincident", 7, 2, 4, 1),
    Sketcher.Constraint("Vertical", 0),
    Sketcher.Constraint("Horizontal", 1),
    Sketcher.Constraint("Vertical", 2),
    Sketcher.Constraint("Horizontal", 3),
    Sketcher.Constraint("Vertical", 4),
    Sketcher.Constraint("Horizontal", 5),
    Sketcher.Constraint("Vertical", 6),
    Sketcher.Constraint("Horizontal", 7),
    Sketcher.Constraint("Coincident", 0, 2, -1, 1),
    Sketcher.Constraint("PointOnObject", 4, 2, -1),
    Sketcher.Constraint("Horizontal", 3, 2, 6, 2),
    Sketcher.Constraint("Equal", 3, 5),
    Sketcher.Constraint("Equal", 7, 0),
    Sketcher.Constraint("DistanceX", 1, 1, 1, 2, 3.0),
    Sketcher.Constraint("DistanceX", -1, 1, 4, 2, 223.0),
])
pocket7 = body.newObject("PartDesign::Pocket", "Pocket006")
pocket7.Profile = sketch12
pocket7.Length = 85

doc.recompute()
